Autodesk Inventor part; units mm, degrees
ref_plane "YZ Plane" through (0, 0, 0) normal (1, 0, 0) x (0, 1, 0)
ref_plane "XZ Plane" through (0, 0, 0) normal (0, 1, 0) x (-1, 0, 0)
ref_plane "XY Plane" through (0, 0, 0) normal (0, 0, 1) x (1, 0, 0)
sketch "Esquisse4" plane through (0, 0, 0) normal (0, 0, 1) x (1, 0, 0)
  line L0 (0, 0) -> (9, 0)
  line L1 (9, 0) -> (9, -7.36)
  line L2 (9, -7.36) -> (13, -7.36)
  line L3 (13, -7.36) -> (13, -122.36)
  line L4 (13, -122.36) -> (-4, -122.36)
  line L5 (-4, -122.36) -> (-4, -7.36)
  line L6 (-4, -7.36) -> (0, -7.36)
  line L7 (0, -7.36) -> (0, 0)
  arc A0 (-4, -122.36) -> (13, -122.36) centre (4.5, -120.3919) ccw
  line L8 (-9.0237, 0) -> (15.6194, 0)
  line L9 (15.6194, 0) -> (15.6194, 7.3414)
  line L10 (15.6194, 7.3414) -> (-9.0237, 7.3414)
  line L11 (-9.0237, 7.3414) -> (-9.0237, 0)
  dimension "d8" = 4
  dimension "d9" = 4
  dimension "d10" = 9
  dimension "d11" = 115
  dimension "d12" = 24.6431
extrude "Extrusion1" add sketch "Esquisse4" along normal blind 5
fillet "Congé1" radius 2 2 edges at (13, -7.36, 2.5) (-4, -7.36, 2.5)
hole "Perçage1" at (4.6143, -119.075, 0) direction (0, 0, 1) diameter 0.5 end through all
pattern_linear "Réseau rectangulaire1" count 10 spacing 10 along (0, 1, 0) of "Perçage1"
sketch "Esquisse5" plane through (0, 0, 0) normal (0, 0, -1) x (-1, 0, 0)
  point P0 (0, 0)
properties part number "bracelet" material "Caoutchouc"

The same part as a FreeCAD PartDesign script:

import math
import FreeCAD as App
import Part
import Sketcher

V = App.Vector
Q = App.Units.Quantity


def edges_at(feature, points):
    """Names of the edges that pass closest to the given points."""
    edges = feature.Shape.Edges
    near = lambda p: min(range(len(edges)), key=lambda i: edges[i].distToShape(Part.Vertex(*p))[0])
    return sorted({f"Edge{near(p) + 1}" for p in points})

doc = App.newDocument("Part")
body = doc.addObject("PartDesign::Body", "Body")

# Sketch on XY plane
sketch1 = doc.addObject("Sketcher::SketchObject", "Sketch")
body.addObject(sketch1)
sketch1.AttachmentSupport = (doc.XY_Plane, [""])
sketch1.MapMode = "FlatFace"
sketch1.addGeometry([
    Part.LineSegment(V(-9, 0, 0), V(0, 0, 0)),  # 0
    Part.LineSegment(V(0, 0, 0), V(0, -7.4, 0)),  # 1
    Part.LineSegment(V(0, -7.4, 0), V(-4, -7.4, 0)),  # 2
    Part.LineSegment(V(-4, -7.4, 0), V(-4, -122.4, 0)),  # 3
    Part.ArcOfCircle(Part.Circle(V(4.5, -120.4, 0), V(0, 0, 1), 8.7), math.radians(-167), math.radians(-13)),  # 4
    Part.LineSegment(V(13, -122.4, 0), V(13, -7.4, 0)),  # 5
    Part.LineSegment(V(13, -7.4, 0), V(9, -7.4, 0)),  # 6
    Part.LineSegment(V(9, -7.4, 0), V(9, 0, 0)),  # 7
    Part.LineSegment(V(9, 0, 0), V(15.6, 0, 0)),  # 8
    Part.LineSegment(V(15.6, 0, 0), V(15.6, 7.3, 0)),  # 9
    Part.LineSegment(V(15.6, 7.3, 0), V(-9, 7.3, 0)),  # 10
    Part.LineSegment(V(-9, 7.3, 0), V(-9, 0, 0)),  # 11
], False)
sketch1.addConstraint([
    Sketcher.Constraint("Coincident", 0, 2, 1, 1),
    Sketcher.Constraint("Coincident", 1, 2, 2, 1),
    Sketcher.Constraint("Coincident", 2, 2, 3, 1),
    Sketcher.Constraint("Coincident", 3, 2, 4, 1),
    Sketcher.Constraint("Coincident", 4, 2, 5, 1),
    Sketcher.Constraint("Coincident", 5, 2, 6, 1),
    Sketcher.Constraint("Coincident", 6, 2, 7, 1),
    Sketcher.Constraint("Coincident", 7, 2, 8, 1),
    Sketcher.Constraint("Coincident", 8, 2, 9, 1),
    Sketcher.Constraint("Coincident", 9, 2, 10, 1),
    Sketcher.Constraint("Coincident", 10, 2, 11, 1),
    Sketcher.Constraint("Coincident", 11, 2, 0, 1),
    Sketcher.Constraint("Horizontal", 0),
    Sketcher.Constraint("Vertical", 1),
    Sketcher.Constraint("Horizontal", 2),
    Sketcher.Constraint("Vertical", 3),
    Sketcher.Constraint("Vertical", 5),
    Sketcher.Constraint("Horizontal", 6),
    Sketcher.Constraint("Vertical", 7),
    Sketcher.Constraint("Horizontal", 8),
    Sketcher.Constraint("Vertical", 9),
    Sketcher.Constraint("Horizontal", 10),
    Sketcher.Constraint("Vertical", 11),
    Sketcher.Constraint("Coincident", 0, 2, -1, 1),
    Sketcher.Constraint("PointOnObject", 7, 2, -1),
    Sketcher.Constraint("Horizontal", 3, 2, 4, 2),
    Sketcher.Constraint("Horizontal", 2, 2, 5, 2),
    Sketcher.Constraint("Equal", 2, 6),
    Sketcher.Constraint("DistanceX", 2, 2, 2, 1, Q("4 mm")),
    Sketcher.Constraint("DistanceY", 3, 2, 3, 1, Q("115 mm")),
    Sketcher.Constraint("DistanceX", -1, 1, 6, 2, Q("9 mm")),
    Sketcher.Constraint("DistanceX", 10, 2, 10, 1, Q("24.643 mm")),
    Sketcher.Constraint("DistanceY", 1, 2, 1, 1, Q("7.36 mm")),
    Sketcher.Constraint("Radius", 4, Q("8.7249 mm")),
    Sketcher.Constraint("DistanceX", 0, 1, 0, 2, Q("9.0237 mm")),
    Sketcher.Constraint("DistanceY", 9, 1, 9, 2, Q("7.3414 mm")),
])
pad1 = doc.addObject("PartDesign::Pad", "Pad")
body.addObject(pad1)
pad1.Profile = sketch1
pad1.Length = 5
doc.recompute()

fillet = doc.addObject("PartDesign::Fillet", "Fillet")
body.addObject(fillet)
fillet.Base = (pad1, edges_at(pad1, [(13, -7.36, 2.5), (-4, -7.36, 2.5)]))
fillet.Radius = 2

# Sketch on XY plane
sketch2 = doc.addObject("Sketcher::SketchObject", "Sketch001")
body.addObject(sketch2)
sketch2.AttachmentSupport = (doc.XY_Plane, [""])
sketch2.MapMode = "FlatFace"
sketch2.addGeometry(Part.Circle(V(4.61, -119.08, 0), V(0, 0, 1), 0.25), False)
sketch2.addConstraint([
    Sketcher.Constraint("Diameter", 0, Q("0.5 mm")),
    Sketcher.Constraint("DistanceY", 0, 3, -1, 1, Q("119.075 mm")),
    Sketcher.Constraint("DistanceX", -1, 1, 0, 3, Q("4.6143 mm")),
])
doc.recompute()
hole = doc.addObject("PartDesign::Hole", "Hole")
body.addObject(hole)
hole.Profile = sketch2
hole.ThreadType = "None"
hole.Diameter = 0.5
hole.DepthType = "ThroughAll"
hole.Reversed = True
doc.recompute()

linearpattern = doc.addObject("PartDesign::LinearPattern", "LinearPattern")
body.addObject(linearpattern)
linearpattern.Originals = [hole]
linearpattern.Direction = (doc.Y_Axis, [""])
linearpattern.Mode = "offset"
linearpattern.Offset = 10
linearpattern.Occurrences = 10
body.Tip = linearpattern

doc.recompute()
